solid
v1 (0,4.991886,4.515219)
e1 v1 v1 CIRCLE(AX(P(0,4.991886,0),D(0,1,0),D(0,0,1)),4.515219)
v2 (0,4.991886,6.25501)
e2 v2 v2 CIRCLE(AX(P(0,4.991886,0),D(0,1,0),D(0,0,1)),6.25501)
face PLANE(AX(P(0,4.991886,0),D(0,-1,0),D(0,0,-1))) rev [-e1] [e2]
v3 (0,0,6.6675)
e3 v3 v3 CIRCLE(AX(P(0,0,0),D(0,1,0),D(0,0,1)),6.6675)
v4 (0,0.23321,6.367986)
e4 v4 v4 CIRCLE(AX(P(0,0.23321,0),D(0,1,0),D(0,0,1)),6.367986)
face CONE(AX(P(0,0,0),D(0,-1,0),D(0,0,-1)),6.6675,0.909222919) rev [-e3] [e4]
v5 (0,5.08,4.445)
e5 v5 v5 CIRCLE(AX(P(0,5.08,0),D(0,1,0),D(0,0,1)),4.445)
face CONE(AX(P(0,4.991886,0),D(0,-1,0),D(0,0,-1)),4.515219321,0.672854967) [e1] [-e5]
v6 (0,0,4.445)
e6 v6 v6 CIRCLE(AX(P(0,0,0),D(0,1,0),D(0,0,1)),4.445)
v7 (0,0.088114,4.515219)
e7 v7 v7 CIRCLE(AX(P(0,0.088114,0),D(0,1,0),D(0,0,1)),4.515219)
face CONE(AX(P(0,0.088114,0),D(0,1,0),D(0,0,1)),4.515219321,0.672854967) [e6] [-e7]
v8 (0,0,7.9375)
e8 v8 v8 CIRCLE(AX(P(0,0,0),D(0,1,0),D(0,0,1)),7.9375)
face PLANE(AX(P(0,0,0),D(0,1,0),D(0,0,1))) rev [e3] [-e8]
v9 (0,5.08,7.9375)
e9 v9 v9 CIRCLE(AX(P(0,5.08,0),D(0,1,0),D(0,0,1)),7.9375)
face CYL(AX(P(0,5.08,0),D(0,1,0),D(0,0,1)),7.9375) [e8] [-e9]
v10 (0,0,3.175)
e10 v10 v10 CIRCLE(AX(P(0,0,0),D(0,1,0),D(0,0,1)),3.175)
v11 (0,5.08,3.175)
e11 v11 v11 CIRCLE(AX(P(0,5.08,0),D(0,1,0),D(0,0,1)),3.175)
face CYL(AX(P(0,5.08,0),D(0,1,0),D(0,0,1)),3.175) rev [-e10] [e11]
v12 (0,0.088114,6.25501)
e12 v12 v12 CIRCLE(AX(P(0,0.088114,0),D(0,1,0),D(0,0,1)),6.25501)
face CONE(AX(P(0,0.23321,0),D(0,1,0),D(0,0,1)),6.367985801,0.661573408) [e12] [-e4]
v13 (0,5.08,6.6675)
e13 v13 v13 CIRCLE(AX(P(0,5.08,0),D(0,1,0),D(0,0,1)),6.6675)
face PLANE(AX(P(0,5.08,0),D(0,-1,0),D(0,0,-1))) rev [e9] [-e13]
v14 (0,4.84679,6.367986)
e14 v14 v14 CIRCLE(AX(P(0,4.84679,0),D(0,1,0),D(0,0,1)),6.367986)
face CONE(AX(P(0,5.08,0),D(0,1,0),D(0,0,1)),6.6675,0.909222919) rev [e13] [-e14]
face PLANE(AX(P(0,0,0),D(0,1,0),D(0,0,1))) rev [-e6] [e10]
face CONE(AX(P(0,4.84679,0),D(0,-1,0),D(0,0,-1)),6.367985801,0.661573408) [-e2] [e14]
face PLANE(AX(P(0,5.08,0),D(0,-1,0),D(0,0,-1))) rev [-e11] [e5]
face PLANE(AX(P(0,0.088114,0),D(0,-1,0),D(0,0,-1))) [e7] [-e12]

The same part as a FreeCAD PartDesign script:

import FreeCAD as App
import Part
import Sketcher

V = App.Vector
Q = App.Units.Quantity

doc = App.newDocument("Part")
params = doc.addObject("Spreadsheet::Sheet", "Params")
for row, (alias, value) in enumerate([
    ("sketch1_height", "0.2 in"),
    ("sketch1_width", "0.05 in"),
    ("revolution_angle", "360 deg"),
], start=1):
    params.set(f"A{row}", alias)
    params.set(f"B{row}", "=" + value)
    params.setAlias(f"B{row}", alias)

body = doc.addObject("PartDesign::Body", "Body")

sketch1 = body.newObject("Sketcher::SketchObject", "Sketch")
sketch1.AttachmentSupport = (doc.getObject("XY_Plane"), [""])
sketch1.MapMode = "FlatFace"
sketch1.addGeometry([
    Part.LineSegment(V(3.175, 0, 0), V(4.445, 0, 0)),
    Part.LineSegment(V(4.445, 0, 0), V(4.515219, 0.088114, 0)),
    Part.LineSegment(V(4.515219, 0.088114, 0), V(6.25501, 0.088114, 0)),
    Part.LineSegment(V(6.25501, 0.088114, 0), V(6.367986, 0.23321, 0)),
    Part.LineSegment(V(6.367986, 0.23321, 0), V(6.6675, 0, 0)),
    Part.LineSegment(V(6.6675, 0, 0), V(7.9375, 0, 0)),
    Part.LineSegment(V(7.9375, 0, 0), V(7.9375, 5.08, 0)),
    Part.LineSegment(V(7.9375, 5.08, 0), V(6.6675, 5.08, 0)),
    Part.LineSegment(V(6.6675, 5.08, 0), V(6.367986, 4.84679, 0)),
    Part.LineSegment(V(6.367986, 4.84679, 0), V(6.25501, 4.991886, 0)),
    Part.LineSegment(V(6.25501, 4.991886, 0), V(4.515219, 4.991886, 0)),
    Part.LineSegment(V(4.515219, 4.991886, 0), V(4.445, 5.08, 0)),
    Part.LineSegment(V(4.445, 5.08, 0), V(3.175, 5.08, 0)),
    Part.LineSegment(V(3.175, 5.08, 0), V(3.175, 0, 0)),
], False)
sketch1.addConstraint([
    Sketcher.Constraint("Coincident", 0, 2, 1, 1),
    Sketcher.Constraint("Coincident", 1, 2, 2, 1),
    Sketcher.Constraint("Coincident", 2, 2, 3, 1),
    Sketcher.Constraint("Coincident", 3, 2, 4, 1),
    Sketcher.Constraint("Coincident", 4, 2, 5, 1),
    Sketcher.Constraint("Coincident", 5, 2, 6, 1),
    Sketcher.Constraint("Coincident", 6, 2, 7, 1),
    Sketcher.Constraint("Coincident", 7, 2, 8, 1),
    Sketcher.Constraint("Coincident", 8, 2, 9, 1),
    Sketcher.Constraint("Coincident", 9, 2, 10, 1),
    Sketcher.Constraint("Coincident", 10, 2, 11, 1),
    Sketcher.Constraint("Coincident", 11, 2, 12, 1),
    Sketcher.Constraint("Coincident", 12, 2, 13, 1),
    Sketcher.Constraint("Coincident", 13, 2, 0, 1),
    Sketcher.Constraint("Horizontal", 0),
    Sketcher.Constraint("Horizontal", 2),
    Sketcher.Constraint("Horizontal", 5),
    Sketcher.Constraint("Vertical", 6),
    Sketcher.Constraint("Horizontal", 7),
    Sketcher.Constraint("Horizontal", 10),
    Sketcher.Constraint("Horizontal", 12),
    Sketcher.Constraint("Vertical", 13),
    Sketcher.Constraint("PointOnObject", 0, 2, -1),
    Sketcher.Constraint("PointOnObject", 4, 2, -1),
    Sketcher.Constraint("Perpendicular", 3, 4),
    Sketcher.Constraint("Perpendicular", 8, 9),
    Sketcher.Constraint("Horizontal", 7, 2, 11, 2),
    Sketcher.Constraint("Vertical", 4, 2, 7, 2),
    Sketcher.Constraint("Vertical", 3, 2, 8, 2),
    Sketcher.Constraint("Vertical", 2, 2, 9, 2),
    Sketcher.Constraint("Vertical", 1, 2, 10, 2),
    Sketcher.Constraint("Vertical", 0, 2, 11, 2),
    Sketcher.Constraint("Equal", 0, 5),
    Sketcher.Constraint("Equal", 4, 8),
    Sketcher.Constraint("DistanceY", 6, 1, 6, 2, Q("0.2 in")),
    Sketcher.Constraint("DistanceX", 0, 1, 0, 2, Q("0.05 in")),
    Sketcher.Constraint("DistanceX", -1, 1, 0, 2, Q("0.175 in")),
    Sketcher.Constraint("DistanceX", -1, 1, 5, 2, Q("0.3125 in")),
    Sketcher.Constraint("Distance", 4, 0.3796),
    Sketcher.Constraint("DistanceX", 2, 1, 2, 2, 1.73979),
    Sketcher.Constraint("Distance", 1, 0.112672),
    Sketcher.Constraint("DistanceX", -1, 1, 1, 2, 4.515219),
])
sketch1.setExpression("Constraints[34]", "Params.sketch1_height")
sketch1.setExpression("Constraints[35]", "Params.sketch1_width")
revolution = body.newObject("PartDesign::Revolution", "Revolution")
revolution.Profile = sketch1
revolution.ReferenceAxis = (sketch1, ["V_Axis"])
revolution.setExpression("Angle", "Params.revolution_angle")

doc.recompute()
